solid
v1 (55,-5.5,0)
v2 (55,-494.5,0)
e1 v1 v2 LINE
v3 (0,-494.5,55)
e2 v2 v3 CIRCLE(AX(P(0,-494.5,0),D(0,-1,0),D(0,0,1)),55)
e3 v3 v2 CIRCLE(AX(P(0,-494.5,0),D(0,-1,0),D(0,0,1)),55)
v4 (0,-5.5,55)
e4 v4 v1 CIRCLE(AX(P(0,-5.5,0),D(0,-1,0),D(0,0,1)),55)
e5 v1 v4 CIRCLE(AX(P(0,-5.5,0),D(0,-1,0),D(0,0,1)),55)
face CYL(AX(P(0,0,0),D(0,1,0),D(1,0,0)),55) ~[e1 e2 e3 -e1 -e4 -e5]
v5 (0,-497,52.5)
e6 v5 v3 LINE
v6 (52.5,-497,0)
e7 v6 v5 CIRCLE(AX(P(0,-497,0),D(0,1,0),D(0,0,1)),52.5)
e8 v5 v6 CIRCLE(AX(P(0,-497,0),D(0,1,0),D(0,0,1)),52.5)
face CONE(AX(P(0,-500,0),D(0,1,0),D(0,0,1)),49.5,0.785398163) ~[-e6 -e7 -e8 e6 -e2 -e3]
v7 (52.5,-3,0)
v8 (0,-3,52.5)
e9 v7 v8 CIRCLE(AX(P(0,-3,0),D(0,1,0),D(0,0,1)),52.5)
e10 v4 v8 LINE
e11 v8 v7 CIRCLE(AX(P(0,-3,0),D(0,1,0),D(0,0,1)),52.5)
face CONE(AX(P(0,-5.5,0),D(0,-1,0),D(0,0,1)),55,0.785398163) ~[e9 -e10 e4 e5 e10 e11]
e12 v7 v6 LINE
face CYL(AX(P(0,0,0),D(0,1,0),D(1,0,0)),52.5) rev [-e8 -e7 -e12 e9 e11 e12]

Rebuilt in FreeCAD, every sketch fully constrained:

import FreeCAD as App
import Part
import Sketcher
from FreeCAD import Vector
Q = App.Units.Quantity

doc = App.newDocument("Part")
body = doc.addObject("PartDesign::Body", "Body")

# Sketch on XZ plane
sketch1 = body.newObject("Sketcher::SketchObject", "Sketch")
sketch1.AttachmentSupport = (doc.getObject("XZ_Plane"), [""])
sketch1.MapMode = "FlatFace"
sketch1.addGeometry([
    Part.Circle(Vector(0, 0, 0), Vector(0, 0, 1), 55),
    Part.Circle(Vector(0, 0, 0), Vector(0, 0, 1), 52.5),
], False)
sketch1.addConstraint([
    Sketcher.Constraint("Coincident", 0, 3, -1, 1),
    Sketcher.Constraint("Coincident", 1, 3, -1, 1),
    Sketcher.Constraint("Diameter", 0, Q("110 mm")),
    Sketcher.Constraint("Diameter", 1, Q("105 mm")),
])
pad1 = body.newObject("PartDesign::Pad", "Pad")
pad1.Profile = sketch1
pad1.Length = 500

# Sketch on YZ plane
sketch2 = body.newObject("Sketcher::SketchObject", "Sketch001")
sketch2.AttachmentSupport = (doc.getObject("YZ_Plane"), [""])
sketch2.MapMode = "FlatFace"
sketch2.addGeometry([
    Part.LineSegment(Vector(0, 49.5, 0), Vector(0, 55, 0)),
    Part.LineSegment(Vector(0, 55, 0), Vector(-5.5, 55, 0)),
    Part.LineSegment(Vector(-5.5, 55, 0), Vector(0, 49.5, 0)),
], False)
sketch2.addConstraint([
    Sketcher.Constraint("Coincident", 0, 2, 1, 1),
    Sketcher.Constraint("Coincident", 1, 2, 2, 1),
    Sketcher.Constraint("Coincident", 2, 2, 0, 1),
    Sketcher.Constraint("Vertical", 0),
    Sketcher.Constraint("Horizontal", 1),
    Sketcher.Constraint("PointOnObject", 0, 2, -2),
    Sketcher.Constraint("Equal", 1, 0),
    Sketcher.Constraint("DistanceX", 1, 2, 1, 1, Q("5.5 mm")),
    Sketcher.Constraint("DistanceY", -1, 1, 0, 2, Q("55 mm")),
])
groove = body.newObject("PartDesign::Groove", "Groove")
groove.Profile = sketch2
groove.ReferenceAxis = (sketch2, ["H_Axis"])
groove.Angle = 360

# Sketch on YZ plane
sketch3 = body.newObject("Sketcher::SketchObject", "Sketch002")
sketch3.AttachmentSupport = (doc.getObject("YZ_Plane"), [""])
sketch3.MapMode = "FlatFace"
sketch3.addGeometry([
    Part.LineSegment(Vector(-500, 49.5, 0), Vector(-494.5, 55, 0)),
    Part.LineSegment(Vector(-494.5, 55, 0), Vector(-500, 55, 0)),
    Part.LineSegment(Vector(-500, 55, 0), Vector(-500, 49.5, 0)),
], False)
sketch3.addConstraint([
    Sketcher.Constraint("Coincident", 0, 2, 1, 1),
    Sketcher.Constraint("Coincident", 1, 2, 2, 1),
    Sketcher.Constraint("Coincident", 2, 2, 0, 1),
    Sketcher.Constraint("Horizontal", 1),
    Sketcher.Constraint("Vertical", 2),
    Sketcher.Constraint("Equal", 1, 2),
    Sketcher.Constraint("DistanceX", 1, 2, 1, 1, Q("5.5 mm")),
    Sketcher.Constraint("DistanceY", -1, 1, 0, 2, Q("55 mm")),
    Sketcher.Constraint("DistanceX", 1, 2, -1, 1, Q("500 mm")),
])
groove2 = body.newObject("PartDesign::Groove", "Groove001")
groove2.Profile = sketch3
groove2.ReferenceAxis = (sketch3, ["H_Axis"])
groove2.Angle = 360

doc.recompute()
